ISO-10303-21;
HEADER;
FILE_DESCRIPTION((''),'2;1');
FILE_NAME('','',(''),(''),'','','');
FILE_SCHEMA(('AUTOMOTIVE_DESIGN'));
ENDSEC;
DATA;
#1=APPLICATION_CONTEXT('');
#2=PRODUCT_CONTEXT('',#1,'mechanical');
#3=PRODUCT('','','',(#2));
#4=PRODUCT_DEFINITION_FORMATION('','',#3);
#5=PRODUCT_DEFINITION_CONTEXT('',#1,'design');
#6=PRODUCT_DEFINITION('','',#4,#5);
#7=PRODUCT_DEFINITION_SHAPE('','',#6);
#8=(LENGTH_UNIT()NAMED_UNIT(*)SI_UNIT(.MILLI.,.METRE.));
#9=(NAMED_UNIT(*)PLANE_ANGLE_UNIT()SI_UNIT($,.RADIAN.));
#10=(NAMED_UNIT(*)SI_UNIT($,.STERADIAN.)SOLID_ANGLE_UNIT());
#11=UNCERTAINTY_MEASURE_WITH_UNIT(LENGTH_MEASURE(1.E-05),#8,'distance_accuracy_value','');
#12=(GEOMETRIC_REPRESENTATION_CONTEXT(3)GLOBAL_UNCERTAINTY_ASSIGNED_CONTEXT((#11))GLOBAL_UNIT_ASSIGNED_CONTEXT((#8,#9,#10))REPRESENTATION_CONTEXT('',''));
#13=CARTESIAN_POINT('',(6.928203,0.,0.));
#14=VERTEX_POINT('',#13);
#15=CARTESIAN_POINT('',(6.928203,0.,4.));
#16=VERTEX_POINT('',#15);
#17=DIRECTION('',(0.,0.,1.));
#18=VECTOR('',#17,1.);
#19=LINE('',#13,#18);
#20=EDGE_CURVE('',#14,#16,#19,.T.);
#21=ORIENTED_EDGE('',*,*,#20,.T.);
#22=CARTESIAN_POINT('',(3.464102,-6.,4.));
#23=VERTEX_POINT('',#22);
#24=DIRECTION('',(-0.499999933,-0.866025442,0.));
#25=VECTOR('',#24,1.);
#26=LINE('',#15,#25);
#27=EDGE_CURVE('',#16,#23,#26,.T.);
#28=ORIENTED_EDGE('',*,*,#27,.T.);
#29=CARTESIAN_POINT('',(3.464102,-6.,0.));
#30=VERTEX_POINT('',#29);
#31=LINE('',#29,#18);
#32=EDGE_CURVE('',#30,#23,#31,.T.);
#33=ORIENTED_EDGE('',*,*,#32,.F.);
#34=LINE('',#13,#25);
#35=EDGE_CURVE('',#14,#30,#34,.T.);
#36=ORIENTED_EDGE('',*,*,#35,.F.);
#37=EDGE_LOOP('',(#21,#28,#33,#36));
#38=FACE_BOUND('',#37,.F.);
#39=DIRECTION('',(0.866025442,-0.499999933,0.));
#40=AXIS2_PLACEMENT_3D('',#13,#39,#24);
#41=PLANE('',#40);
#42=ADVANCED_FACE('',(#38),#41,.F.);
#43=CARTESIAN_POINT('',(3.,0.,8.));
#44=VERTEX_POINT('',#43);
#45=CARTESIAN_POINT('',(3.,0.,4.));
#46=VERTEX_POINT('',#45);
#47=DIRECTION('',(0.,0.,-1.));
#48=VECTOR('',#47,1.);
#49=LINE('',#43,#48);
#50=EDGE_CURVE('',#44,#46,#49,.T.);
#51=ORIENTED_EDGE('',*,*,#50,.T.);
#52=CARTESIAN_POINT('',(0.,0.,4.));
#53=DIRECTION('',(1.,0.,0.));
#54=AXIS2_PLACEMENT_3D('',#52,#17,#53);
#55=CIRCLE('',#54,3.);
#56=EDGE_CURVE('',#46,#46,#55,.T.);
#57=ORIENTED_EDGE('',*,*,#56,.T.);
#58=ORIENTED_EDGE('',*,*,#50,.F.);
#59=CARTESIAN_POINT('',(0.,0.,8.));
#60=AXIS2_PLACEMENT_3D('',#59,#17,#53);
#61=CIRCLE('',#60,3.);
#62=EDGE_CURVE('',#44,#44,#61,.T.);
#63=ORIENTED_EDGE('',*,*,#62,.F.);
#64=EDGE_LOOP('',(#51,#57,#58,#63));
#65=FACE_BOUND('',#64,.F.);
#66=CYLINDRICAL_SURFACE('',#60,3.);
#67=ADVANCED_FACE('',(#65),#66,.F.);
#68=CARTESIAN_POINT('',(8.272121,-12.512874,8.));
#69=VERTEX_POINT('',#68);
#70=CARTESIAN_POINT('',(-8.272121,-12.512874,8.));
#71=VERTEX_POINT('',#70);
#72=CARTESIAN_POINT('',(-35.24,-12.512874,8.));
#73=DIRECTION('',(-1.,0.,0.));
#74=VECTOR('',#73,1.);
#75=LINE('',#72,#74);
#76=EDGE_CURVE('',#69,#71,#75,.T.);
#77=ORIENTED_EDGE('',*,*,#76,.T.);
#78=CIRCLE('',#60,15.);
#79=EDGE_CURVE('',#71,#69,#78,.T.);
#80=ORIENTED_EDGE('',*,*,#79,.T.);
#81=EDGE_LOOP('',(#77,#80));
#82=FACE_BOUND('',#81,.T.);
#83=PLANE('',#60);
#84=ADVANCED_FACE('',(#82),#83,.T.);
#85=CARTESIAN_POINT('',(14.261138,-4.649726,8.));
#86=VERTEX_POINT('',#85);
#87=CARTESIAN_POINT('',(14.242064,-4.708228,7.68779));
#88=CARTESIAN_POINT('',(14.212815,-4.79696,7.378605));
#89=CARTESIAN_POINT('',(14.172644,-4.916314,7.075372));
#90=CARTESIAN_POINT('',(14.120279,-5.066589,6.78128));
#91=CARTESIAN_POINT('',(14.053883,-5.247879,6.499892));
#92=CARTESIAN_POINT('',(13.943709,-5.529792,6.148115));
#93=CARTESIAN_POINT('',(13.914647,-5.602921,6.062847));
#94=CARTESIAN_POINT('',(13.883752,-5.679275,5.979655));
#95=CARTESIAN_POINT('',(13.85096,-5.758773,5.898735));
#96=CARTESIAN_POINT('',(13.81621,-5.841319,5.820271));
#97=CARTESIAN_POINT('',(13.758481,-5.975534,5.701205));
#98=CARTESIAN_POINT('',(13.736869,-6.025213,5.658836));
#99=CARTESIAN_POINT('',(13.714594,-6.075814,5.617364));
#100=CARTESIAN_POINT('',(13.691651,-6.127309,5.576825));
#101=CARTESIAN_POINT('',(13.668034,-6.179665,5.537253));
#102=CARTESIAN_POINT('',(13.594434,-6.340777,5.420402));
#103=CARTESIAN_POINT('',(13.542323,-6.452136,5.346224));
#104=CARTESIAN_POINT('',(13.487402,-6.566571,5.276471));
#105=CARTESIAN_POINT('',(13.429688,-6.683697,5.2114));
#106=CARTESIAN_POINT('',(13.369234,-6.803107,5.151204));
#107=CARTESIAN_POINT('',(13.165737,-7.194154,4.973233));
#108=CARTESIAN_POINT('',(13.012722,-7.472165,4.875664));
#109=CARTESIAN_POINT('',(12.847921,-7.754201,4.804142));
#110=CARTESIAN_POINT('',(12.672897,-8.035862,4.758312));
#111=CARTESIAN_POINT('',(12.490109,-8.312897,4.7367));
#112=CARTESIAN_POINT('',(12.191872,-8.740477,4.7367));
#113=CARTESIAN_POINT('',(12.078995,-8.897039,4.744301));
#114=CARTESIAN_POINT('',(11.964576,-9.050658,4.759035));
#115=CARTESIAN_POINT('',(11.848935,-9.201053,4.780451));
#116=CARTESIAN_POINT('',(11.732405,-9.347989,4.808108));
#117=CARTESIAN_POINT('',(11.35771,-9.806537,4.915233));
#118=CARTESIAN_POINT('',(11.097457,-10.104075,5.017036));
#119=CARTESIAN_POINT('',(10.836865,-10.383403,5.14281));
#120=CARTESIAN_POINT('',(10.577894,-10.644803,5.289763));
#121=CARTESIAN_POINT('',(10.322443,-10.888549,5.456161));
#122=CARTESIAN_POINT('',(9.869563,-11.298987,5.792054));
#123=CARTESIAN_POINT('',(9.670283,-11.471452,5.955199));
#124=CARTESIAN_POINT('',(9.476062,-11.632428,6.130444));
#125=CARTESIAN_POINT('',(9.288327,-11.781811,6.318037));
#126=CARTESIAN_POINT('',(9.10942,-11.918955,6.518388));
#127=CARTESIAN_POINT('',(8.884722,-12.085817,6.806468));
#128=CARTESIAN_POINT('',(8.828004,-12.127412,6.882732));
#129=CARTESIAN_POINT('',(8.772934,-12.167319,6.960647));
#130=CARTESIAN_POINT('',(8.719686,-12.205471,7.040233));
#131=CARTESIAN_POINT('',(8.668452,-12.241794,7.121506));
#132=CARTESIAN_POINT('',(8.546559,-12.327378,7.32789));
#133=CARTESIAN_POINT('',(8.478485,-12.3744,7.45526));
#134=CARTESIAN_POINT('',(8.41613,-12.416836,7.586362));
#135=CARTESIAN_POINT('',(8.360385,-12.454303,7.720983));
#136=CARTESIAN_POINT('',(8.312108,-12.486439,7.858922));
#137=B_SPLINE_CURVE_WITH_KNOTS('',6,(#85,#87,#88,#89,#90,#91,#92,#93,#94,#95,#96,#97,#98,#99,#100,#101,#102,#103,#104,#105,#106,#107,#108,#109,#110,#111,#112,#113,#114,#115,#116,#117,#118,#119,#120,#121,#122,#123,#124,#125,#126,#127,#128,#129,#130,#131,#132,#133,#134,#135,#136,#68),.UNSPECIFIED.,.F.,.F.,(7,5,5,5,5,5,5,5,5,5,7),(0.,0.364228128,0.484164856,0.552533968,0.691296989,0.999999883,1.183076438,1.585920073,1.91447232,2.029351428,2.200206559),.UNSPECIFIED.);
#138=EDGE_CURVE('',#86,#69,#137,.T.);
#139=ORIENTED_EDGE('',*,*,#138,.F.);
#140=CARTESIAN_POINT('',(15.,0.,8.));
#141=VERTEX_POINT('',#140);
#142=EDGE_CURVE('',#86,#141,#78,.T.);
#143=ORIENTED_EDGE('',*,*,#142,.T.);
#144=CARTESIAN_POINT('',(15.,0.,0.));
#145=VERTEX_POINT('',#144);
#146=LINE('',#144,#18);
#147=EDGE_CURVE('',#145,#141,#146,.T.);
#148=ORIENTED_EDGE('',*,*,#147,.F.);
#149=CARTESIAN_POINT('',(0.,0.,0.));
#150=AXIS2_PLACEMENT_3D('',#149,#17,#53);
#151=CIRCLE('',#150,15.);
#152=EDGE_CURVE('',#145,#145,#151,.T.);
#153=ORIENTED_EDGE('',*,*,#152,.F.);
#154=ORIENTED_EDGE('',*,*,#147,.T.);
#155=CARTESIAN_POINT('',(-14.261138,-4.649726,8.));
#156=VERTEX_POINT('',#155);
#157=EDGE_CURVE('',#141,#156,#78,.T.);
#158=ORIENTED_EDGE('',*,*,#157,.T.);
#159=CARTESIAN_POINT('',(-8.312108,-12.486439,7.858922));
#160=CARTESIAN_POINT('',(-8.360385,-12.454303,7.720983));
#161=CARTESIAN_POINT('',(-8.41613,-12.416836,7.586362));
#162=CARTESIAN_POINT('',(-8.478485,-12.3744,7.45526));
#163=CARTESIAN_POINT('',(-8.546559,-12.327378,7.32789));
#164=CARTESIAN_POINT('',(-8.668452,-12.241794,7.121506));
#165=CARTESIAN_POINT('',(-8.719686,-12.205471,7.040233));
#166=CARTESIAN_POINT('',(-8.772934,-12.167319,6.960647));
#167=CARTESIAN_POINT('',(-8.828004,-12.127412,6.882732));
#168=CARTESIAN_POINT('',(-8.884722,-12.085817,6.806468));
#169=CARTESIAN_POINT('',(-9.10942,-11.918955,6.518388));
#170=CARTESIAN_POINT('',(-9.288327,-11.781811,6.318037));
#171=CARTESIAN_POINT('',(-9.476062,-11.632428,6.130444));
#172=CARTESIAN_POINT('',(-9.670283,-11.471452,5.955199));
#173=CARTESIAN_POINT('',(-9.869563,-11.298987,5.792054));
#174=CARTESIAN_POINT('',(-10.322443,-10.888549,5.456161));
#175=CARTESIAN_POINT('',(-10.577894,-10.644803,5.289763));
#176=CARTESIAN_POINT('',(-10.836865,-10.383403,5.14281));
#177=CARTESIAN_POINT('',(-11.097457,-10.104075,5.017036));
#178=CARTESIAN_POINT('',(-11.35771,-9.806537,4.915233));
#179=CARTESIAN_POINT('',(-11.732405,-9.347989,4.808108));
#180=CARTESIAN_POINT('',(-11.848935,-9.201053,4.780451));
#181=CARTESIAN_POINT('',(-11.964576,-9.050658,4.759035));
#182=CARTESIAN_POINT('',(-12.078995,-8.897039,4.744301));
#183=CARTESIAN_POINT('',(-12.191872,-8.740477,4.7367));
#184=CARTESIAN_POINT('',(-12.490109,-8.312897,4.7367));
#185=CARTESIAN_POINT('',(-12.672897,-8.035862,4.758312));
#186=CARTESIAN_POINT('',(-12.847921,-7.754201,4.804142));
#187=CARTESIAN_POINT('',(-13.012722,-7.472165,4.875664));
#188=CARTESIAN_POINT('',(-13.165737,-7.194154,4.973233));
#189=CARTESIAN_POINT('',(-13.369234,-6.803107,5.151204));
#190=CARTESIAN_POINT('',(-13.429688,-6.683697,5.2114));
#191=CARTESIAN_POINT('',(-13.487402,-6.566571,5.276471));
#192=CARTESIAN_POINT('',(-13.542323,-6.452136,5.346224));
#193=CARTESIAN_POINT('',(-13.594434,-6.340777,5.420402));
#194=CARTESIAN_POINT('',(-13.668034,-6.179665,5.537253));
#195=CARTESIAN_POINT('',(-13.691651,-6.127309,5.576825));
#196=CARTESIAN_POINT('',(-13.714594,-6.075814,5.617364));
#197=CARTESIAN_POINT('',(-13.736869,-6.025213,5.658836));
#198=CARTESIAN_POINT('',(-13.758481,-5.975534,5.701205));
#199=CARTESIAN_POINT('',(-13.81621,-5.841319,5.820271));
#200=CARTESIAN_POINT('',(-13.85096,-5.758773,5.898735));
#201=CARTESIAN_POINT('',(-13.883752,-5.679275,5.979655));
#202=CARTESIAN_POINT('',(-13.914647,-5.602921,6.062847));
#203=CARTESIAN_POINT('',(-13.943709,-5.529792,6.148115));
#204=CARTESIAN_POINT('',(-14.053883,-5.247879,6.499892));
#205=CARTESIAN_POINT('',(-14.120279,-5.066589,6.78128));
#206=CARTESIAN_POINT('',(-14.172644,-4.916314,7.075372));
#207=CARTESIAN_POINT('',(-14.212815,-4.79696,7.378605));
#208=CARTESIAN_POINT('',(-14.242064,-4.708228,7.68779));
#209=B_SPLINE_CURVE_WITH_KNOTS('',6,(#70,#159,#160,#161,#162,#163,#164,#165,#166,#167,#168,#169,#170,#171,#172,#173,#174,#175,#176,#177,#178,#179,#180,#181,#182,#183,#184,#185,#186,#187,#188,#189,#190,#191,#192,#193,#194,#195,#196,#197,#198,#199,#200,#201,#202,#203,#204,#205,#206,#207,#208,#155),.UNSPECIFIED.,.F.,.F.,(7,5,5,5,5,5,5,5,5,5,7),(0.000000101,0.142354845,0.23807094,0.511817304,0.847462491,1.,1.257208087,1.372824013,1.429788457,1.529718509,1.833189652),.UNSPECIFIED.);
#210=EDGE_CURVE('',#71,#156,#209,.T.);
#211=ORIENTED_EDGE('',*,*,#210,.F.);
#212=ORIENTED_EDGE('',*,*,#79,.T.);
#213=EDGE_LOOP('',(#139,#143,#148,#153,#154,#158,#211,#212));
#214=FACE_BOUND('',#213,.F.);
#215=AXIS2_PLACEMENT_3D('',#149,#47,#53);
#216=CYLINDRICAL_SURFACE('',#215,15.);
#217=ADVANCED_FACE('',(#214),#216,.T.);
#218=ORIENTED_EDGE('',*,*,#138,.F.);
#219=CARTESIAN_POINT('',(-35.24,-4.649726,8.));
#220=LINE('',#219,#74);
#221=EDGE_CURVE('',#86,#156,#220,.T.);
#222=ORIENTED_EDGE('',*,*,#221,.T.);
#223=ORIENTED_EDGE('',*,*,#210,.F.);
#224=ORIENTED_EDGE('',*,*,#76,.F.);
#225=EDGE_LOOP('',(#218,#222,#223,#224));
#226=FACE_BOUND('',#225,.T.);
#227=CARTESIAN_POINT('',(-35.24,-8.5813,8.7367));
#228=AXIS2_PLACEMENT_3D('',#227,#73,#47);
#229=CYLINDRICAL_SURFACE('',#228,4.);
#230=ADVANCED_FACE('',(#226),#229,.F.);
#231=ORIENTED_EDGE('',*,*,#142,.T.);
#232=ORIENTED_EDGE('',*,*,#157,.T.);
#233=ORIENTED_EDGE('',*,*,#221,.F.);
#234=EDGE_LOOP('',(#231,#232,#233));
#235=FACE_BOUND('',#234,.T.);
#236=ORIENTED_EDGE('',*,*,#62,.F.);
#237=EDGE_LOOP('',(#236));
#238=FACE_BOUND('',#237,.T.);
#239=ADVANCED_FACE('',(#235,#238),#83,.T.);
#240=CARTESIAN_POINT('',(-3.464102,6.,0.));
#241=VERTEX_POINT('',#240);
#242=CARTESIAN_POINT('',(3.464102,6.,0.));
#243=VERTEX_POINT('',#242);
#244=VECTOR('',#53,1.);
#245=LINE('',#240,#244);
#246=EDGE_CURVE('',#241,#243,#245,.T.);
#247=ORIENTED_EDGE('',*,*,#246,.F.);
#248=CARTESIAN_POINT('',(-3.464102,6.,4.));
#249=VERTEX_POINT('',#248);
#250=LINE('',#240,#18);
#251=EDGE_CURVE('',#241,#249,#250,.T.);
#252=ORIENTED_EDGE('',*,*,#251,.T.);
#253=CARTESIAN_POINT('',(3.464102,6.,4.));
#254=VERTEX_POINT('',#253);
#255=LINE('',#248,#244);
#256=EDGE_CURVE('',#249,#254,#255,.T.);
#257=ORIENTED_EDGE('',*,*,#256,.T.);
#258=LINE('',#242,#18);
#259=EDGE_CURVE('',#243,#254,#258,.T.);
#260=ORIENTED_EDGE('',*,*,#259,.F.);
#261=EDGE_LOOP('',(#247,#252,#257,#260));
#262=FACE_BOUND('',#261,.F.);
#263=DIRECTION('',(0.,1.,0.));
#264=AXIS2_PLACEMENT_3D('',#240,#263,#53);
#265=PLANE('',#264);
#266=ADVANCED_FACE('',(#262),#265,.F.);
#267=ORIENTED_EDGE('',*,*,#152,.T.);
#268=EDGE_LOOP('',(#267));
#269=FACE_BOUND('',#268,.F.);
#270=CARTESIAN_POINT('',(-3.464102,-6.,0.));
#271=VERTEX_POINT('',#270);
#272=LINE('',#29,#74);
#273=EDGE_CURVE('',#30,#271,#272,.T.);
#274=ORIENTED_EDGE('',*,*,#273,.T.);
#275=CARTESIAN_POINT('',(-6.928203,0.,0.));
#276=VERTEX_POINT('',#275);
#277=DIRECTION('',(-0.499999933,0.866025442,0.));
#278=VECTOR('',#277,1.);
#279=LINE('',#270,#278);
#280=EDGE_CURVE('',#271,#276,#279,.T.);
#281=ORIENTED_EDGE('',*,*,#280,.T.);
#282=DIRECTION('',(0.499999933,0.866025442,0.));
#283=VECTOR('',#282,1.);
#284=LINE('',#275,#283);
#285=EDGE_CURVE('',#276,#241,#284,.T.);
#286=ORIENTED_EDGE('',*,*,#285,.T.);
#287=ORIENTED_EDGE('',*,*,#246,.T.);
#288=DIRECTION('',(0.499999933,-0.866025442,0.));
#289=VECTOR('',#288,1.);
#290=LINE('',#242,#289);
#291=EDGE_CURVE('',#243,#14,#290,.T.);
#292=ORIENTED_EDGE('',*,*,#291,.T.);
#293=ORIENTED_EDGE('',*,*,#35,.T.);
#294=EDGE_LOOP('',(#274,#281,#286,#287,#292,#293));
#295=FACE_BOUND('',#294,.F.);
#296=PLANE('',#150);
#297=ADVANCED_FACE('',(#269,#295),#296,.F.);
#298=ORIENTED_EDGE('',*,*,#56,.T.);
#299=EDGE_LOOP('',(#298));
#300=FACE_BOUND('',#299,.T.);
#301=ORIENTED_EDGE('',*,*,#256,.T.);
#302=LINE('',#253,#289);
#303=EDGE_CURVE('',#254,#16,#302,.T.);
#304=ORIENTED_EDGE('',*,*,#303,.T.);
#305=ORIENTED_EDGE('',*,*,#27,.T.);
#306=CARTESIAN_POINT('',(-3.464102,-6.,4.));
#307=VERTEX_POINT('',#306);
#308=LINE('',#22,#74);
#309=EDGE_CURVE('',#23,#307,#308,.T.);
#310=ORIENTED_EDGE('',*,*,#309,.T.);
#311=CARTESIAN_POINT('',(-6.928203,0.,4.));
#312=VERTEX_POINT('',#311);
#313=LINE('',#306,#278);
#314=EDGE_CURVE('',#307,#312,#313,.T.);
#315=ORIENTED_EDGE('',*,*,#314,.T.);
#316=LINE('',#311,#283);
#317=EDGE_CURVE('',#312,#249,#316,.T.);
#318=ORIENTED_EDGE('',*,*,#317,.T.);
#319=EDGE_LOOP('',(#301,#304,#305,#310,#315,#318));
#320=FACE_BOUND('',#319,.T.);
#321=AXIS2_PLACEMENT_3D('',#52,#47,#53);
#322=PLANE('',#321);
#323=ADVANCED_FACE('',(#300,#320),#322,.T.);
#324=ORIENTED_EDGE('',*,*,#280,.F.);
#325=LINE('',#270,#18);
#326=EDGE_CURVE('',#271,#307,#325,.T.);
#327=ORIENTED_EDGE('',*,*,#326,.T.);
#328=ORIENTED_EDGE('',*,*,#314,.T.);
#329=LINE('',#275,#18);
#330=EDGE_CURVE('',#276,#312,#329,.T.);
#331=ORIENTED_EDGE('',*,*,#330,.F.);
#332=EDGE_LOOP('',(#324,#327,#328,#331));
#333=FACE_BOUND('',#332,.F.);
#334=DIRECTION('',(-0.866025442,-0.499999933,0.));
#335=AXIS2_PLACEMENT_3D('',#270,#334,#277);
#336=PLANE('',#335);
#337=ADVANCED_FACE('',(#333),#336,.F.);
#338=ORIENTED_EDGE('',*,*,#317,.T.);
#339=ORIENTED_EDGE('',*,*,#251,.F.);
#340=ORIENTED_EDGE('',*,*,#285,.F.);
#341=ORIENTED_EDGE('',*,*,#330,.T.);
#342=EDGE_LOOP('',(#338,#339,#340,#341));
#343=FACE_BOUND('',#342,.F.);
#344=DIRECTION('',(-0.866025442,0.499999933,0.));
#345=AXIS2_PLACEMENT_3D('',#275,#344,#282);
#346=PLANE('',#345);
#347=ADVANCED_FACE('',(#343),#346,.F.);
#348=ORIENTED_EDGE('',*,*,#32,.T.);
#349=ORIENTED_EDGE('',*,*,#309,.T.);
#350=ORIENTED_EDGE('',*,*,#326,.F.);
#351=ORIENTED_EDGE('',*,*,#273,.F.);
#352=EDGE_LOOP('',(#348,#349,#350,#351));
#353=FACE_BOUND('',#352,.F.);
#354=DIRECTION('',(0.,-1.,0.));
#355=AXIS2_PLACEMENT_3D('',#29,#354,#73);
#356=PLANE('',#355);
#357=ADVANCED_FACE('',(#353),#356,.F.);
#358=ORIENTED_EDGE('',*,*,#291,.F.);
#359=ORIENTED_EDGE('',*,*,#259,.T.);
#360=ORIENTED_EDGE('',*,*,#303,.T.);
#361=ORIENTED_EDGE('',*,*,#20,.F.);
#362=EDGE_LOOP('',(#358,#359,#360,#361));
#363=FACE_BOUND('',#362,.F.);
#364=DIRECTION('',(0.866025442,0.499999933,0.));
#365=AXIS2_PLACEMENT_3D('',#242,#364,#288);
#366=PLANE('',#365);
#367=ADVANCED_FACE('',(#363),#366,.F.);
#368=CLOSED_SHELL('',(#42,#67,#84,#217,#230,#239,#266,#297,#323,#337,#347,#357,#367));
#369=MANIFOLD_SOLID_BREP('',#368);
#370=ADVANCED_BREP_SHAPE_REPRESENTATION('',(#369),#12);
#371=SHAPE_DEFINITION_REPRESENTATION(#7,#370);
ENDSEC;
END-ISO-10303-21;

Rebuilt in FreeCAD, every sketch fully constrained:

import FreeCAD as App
import Part
import Sketcher
Q = App.Units.Quantity


def add_polygon(sketch, points):
    """Adds a closed chain of lines whose ends are joined by coincident constraints."""
    first, n = sketch.GeometryCount, len(points)
    for a, b in zip(points, points[1:] + points[:1]):
        sketch.addGeometry(Part.LineSegment(App.Vector(*a, 0), App.Vector(*b, 0)), False)
    for i in range(n):
        sketch.addConstraint(Sketcher.Constraint("Coincident", first + i, 2, first + (i + 1) % n, 1))

doc = App.newDocument("Part")
body = doc.addObject("PartDesign::Body", "Body")

# Sketch on XY plane
sketch1 = doc.addObject("Sketcher::SketchObject", "Sketch")
body.addObject(sketch1)
sketch1.AttachmentSupport = (doc.XY_Plane, [""])
sketch1.MapMode = "FlatFace"
sketch1.addGeometry(Part.Circle(App.Vector(0, 0, 0), App.Vector(0, 0, 1), 4), False)
sketch1.addConstraint([
    Sketcher.Constraint("Coincident", 0, 3, -1, 1),
    Sketcher.Constraint("Diameter", 0, 8.0),
])
pad1 = doc.addObject("PartDesign::Pad", "Pad")
body.addObject(pad1)
pad1.Profile = sketch1
pad1.Length = 70
body2 = doc.addObject("PartDesign::Body", "Body001")
doc.recompute()

body.Placement = App.Placement(App.Vector(0, 0, 0), App.Rotation(App.Vector(0, 1, 0), 90))
boolean = doc.addObject("PartDesign::Boolean", "Boolean")
body2.addObject(boolean)
boolean.Type = "Fuse"
boolean.addObjects([body])
body3 = doc.addObject("PartDesign::Body", "Body002")
doc.recompute()

body2.Placement = App.Placement(App.Vector(-35.24, -8.5813, 8.7367), App.Rotation(App.Vector(0, 0, 1), 0))
boolean2 = doc.addObject("PartDesign::Boolean", "Boolean001")
body3.addObject(boolean2)
boolean2.Type = "Fuse"
boolean2.addObjects([body2])
body4 = doc.addObject("PartDesign::Body", "Body003")

# Sketch on XY plane
sketch2 = doc.addObject("Sketcher::SketchObject", "Sketch001")
body4.addObject(sketch2)
sketch2.AttachmentSupport = (doc.getObject("XY_Plane003"), [""])
sketch2.MapMode = "FlatFace"
sketch2.addGeometry(Part.Circle(App.Vector(0, 0, 0), App.Vector(0, 0, 1), 15), False)
sketch2.addConstraint([
    Sketcher.Constraint("Coincident", 0, 3, -1, 1),
    Sketcher.Constraint("Diameter", 0, 30.0),
])
pad2 = doc.addObject("PartDesign::Pad", "Pad001")
body4.addObject(pad2)
pad2.Profile = sketch2
pad2.Length = 8

# Sketch on XY plane
sketch3 = doc.addObject("Sketcher::SketchObject", "Sketch002")
body4.addObject(sketch3)
sketch3.AttachmentSupport = (doc.getObject("XY_Plane003"), [""])
sketch3.MapMode = "FlatFace"
sketch3.AttachmentOffset = App.Placement(App.Vector(0, 0, 8), App.Rotation())
sketch3.addGeometry(Part.Circle(App.Vector(0, 0, 0), App.Vector(0, 0, 1), 3), False)
sketch3.addConstraint([
    Sketcher.Constraint("Coincident", 0, 3, -1, 1),
    Sketcher.Constraint("Diameter", 0, 6.0),
])
pocket1 = doc.addObject("PartDesign::Pocket", "Pocket")
body4.addObject(pocket1)
pocket1.Profile = sketch3
pocket1.Type = "ThroughAll"
doc.recompute()

boolean3 = doc.addObject("PartDesign::Boolean", "Boolean002")
body4.addObject(boolean3)
boolean3.Type = "Cut"
boolean3.addObjects([body3])

# Sketch on XY plane
sketch4 = doc.addObject("Sketcher::SketchObject", "Sketch003")
body4.addObject(sketch4)
sketch4.AttachmentSupport = (doc.getObject("XY_Plane003"), [""])
sketch4.MapMode = "FlatFace"
add_polygon(sketch4, [(3.464102, 6), (6.928203, 0), (3.464102, -6), (-3.464102, -6), (-6.928203, 0), (-3.464102, 6)])  # lines 0-5
sketch4.addConstraint([
    Sketcher.Constraint("Horizontal", 2),
    Sketcher.Constraint("Horizontal", 5),
    Sketcher.Constraint("Symmetric", 0, 2, 3, 2, -1, 1),
    Sketcher.Constraint("Symmetric", 1, 2, 4, 2, -1, 1),
    Sketcher.Constraint("PointOnObject", 0, 2, -1),
    Sketcher.Constraint("Parallel", 0, 3),
    Sketcher.Constraint("Vertical", 2, 2, 4, 2),
    Sketcher.Constraint("Angle", 0, Q("-60.000004 deg")),
    Sketcher.Constraint("DistanceY", 1, 2, -1, 1, 6.0),
    Sketcher.Constraint("DistanceX", -1, 1, 1, 2, 3.464102),
])
pocket2 = doc.addObject("PartDesign::Pocket", "Pocket001")
body4.addObject(pocket2)
pocket2.Profile = sketch4
pocket2.Length = 4
pocket2.Reversed = True

doc.recompute()
